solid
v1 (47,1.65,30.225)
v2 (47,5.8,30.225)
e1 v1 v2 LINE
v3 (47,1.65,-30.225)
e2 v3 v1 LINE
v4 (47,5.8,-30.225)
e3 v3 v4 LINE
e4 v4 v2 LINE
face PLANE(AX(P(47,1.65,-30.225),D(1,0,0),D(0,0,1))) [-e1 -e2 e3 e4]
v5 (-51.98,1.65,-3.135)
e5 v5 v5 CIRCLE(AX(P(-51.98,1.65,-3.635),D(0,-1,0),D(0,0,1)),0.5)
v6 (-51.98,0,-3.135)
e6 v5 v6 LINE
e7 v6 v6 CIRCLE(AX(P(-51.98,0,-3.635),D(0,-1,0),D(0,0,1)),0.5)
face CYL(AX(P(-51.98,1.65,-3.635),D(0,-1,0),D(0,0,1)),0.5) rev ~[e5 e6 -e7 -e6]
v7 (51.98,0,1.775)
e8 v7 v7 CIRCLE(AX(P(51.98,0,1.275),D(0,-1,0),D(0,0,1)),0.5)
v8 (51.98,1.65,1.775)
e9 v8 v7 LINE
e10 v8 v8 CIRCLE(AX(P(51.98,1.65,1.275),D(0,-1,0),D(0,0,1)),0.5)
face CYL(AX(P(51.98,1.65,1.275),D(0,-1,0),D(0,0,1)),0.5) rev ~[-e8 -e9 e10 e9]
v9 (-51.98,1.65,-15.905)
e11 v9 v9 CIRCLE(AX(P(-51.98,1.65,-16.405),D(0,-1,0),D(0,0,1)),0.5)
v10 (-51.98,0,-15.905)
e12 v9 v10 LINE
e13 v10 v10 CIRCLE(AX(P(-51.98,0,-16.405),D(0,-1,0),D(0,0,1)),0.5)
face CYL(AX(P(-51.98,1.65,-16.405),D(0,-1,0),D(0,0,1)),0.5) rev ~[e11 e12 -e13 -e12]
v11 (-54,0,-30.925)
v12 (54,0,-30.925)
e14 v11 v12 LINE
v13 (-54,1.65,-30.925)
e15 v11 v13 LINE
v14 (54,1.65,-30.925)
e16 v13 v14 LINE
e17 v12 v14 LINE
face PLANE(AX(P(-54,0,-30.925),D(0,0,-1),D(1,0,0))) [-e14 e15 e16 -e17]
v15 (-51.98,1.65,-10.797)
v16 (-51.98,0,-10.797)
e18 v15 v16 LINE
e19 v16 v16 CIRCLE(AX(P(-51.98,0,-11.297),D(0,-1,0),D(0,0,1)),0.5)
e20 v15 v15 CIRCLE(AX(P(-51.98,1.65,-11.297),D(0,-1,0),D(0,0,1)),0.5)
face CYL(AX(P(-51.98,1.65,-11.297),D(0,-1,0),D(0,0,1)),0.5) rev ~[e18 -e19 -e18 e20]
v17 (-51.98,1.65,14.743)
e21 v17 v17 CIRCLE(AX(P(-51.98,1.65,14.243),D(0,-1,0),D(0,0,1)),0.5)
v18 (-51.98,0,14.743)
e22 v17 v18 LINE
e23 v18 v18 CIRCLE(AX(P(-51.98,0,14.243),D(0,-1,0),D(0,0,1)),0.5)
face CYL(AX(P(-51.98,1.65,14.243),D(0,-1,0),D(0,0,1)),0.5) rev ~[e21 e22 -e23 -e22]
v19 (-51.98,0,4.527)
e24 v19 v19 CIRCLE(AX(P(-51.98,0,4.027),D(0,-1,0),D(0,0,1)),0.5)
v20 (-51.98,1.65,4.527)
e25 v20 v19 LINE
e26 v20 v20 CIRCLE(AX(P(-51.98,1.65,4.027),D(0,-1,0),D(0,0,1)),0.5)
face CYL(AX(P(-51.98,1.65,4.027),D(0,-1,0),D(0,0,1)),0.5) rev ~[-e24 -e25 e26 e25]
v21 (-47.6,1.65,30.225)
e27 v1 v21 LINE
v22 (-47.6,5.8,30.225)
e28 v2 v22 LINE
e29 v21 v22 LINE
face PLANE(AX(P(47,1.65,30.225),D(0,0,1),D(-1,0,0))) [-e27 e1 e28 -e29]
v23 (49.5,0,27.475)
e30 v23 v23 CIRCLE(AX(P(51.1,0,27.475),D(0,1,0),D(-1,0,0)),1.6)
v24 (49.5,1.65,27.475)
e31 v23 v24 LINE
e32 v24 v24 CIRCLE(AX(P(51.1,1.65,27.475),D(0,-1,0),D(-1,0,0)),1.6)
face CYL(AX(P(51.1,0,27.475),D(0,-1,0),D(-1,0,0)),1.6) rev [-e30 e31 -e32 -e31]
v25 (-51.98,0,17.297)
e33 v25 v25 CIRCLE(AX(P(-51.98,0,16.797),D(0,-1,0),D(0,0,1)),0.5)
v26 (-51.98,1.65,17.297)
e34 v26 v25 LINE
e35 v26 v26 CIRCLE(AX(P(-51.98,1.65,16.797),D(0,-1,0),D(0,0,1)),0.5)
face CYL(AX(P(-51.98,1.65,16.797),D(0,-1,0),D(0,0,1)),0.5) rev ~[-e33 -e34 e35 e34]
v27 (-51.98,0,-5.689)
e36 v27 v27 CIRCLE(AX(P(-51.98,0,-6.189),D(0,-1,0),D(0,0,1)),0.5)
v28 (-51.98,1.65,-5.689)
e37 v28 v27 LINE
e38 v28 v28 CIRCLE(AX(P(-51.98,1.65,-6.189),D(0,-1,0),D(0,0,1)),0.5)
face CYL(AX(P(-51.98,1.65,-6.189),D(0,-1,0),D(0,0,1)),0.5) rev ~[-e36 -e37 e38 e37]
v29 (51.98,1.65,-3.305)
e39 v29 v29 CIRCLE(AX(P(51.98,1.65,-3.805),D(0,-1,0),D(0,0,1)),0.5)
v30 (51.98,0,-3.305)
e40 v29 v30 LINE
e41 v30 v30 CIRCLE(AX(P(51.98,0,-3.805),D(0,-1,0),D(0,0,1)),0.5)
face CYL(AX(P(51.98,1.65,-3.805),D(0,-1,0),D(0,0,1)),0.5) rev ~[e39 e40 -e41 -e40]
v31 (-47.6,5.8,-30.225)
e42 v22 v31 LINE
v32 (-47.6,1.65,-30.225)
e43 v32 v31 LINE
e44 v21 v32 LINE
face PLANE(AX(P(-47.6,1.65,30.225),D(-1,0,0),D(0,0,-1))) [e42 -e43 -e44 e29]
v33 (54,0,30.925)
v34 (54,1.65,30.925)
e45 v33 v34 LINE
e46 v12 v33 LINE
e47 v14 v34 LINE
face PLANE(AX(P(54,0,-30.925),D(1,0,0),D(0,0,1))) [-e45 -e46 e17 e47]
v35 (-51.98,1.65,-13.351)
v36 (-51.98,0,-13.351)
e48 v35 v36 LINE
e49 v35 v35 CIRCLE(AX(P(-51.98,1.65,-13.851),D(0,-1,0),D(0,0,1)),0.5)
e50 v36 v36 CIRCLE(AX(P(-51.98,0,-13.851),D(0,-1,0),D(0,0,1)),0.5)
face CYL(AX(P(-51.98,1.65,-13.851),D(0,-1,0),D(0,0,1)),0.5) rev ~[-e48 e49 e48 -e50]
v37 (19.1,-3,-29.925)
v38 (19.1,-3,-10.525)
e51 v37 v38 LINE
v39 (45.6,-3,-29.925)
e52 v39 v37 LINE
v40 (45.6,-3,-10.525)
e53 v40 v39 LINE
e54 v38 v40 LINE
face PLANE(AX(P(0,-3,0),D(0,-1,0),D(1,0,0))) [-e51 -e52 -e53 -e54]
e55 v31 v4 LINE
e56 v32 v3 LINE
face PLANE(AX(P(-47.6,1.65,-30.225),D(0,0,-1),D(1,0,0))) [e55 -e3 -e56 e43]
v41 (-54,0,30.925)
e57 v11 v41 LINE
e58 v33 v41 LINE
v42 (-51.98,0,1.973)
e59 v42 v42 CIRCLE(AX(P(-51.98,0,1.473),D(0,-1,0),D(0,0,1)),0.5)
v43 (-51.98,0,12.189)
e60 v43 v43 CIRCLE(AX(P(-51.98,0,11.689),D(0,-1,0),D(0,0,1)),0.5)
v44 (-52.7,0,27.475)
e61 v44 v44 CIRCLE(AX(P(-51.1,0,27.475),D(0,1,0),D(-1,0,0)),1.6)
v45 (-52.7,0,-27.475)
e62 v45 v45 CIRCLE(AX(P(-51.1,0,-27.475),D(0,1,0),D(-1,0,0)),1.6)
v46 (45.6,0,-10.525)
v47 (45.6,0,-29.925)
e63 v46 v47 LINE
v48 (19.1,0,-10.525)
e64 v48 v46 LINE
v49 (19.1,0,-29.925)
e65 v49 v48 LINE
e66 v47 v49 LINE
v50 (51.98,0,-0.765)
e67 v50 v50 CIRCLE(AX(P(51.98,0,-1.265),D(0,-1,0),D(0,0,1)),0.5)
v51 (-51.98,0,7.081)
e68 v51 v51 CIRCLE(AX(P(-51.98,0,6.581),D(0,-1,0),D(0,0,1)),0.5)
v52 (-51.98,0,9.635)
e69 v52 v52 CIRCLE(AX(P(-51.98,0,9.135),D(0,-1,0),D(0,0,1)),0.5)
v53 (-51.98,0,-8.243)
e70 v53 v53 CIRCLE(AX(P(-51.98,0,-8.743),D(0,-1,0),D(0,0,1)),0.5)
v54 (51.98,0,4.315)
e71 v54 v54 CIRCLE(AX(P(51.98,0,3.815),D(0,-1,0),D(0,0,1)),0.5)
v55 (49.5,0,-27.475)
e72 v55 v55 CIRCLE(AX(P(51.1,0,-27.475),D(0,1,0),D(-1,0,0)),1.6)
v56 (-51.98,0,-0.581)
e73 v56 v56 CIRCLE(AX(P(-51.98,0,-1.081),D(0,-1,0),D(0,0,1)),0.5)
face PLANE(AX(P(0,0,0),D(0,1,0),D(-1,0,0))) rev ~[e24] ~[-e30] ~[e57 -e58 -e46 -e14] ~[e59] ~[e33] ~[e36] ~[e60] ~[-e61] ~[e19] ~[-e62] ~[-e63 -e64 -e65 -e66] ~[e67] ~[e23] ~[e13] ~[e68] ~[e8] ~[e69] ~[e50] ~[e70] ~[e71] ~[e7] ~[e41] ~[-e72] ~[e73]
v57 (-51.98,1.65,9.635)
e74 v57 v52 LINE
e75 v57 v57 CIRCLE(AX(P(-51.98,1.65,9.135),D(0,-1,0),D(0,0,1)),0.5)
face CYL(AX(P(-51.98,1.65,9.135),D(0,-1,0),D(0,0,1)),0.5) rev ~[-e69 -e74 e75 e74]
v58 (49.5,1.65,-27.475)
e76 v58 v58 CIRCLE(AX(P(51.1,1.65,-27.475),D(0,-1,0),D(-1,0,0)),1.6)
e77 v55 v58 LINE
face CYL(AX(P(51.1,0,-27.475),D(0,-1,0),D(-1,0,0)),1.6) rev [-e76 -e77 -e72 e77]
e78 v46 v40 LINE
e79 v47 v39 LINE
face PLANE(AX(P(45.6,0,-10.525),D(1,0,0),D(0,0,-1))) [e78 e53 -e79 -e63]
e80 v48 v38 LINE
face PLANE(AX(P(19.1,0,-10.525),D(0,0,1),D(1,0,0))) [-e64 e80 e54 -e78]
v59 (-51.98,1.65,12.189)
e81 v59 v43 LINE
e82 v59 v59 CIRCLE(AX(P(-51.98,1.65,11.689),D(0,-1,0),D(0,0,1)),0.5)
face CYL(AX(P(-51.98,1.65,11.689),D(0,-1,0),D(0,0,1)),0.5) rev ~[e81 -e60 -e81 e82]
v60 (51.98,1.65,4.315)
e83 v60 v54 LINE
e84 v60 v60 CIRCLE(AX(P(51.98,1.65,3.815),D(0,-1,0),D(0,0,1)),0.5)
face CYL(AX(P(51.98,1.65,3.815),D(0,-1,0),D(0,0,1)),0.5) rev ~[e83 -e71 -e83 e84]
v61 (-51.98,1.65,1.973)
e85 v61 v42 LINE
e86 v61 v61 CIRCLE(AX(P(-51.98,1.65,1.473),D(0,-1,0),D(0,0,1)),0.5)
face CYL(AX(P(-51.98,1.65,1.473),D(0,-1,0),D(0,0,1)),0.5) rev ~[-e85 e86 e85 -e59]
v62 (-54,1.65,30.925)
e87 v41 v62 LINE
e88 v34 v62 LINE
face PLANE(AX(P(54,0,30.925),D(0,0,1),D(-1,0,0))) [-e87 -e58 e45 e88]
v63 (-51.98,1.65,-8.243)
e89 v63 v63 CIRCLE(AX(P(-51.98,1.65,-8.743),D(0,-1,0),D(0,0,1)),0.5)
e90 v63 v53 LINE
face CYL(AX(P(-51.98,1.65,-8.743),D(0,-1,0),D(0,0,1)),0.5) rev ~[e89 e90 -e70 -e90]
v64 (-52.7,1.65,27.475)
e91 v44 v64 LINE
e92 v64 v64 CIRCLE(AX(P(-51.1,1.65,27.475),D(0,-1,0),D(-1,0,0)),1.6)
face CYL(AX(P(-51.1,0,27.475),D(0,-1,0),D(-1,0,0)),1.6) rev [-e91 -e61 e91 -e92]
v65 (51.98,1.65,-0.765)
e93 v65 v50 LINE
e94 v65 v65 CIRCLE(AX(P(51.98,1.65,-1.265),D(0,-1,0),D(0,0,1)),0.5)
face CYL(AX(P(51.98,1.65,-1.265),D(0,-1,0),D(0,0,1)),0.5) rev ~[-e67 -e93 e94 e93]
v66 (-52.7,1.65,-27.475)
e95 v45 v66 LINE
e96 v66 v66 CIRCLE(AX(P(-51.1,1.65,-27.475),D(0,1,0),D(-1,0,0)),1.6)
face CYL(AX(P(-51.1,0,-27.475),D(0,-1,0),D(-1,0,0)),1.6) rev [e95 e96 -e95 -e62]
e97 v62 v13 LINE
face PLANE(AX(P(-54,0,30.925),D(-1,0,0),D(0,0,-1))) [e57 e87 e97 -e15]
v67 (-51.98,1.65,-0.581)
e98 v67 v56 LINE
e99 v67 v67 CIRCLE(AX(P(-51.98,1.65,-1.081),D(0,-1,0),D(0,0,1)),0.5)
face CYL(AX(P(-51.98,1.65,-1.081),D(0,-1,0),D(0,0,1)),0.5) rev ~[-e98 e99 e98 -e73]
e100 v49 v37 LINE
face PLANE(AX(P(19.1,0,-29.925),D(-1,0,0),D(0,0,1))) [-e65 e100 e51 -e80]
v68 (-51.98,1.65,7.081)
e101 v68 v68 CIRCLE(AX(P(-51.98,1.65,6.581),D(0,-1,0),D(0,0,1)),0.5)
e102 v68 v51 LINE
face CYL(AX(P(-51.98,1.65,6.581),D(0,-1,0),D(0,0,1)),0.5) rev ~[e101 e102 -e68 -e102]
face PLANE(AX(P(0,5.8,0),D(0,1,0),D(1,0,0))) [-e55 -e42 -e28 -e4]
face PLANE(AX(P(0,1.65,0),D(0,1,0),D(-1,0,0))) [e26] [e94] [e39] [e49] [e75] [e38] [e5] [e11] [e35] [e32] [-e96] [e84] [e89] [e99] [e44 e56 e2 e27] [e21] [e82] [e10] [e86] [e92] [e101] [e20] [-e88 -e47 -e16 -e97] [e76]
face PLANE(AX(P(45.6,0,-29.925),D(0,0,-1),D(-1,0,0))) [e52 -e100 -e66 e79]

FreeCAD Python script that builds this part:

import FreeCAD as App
import Part
import Sketcher

V = App.Vector
Q = App.Units.Quantity


def add_polygon(sketch, points):
    """Adds a closed chain of lines whose ends are joined by coincident constraints."""
    first, n = sketch.GeometryCount, len(points)
    for a, b in zip(points, points[1:] + points[:1]):
        sketch.addGeometry(Part.LineSegment(App.Vector(*a, 0), App.Vector(*b, 0)), False)
    for i in range(n):
        sketch.addConstraint(Sketcher.Constraint("Coincident", first + i, 2, first + (i + 1) % n, 1))

doc = App.newDocument("Part")
body = doc.addObject("PartDesign::Body", "Body")

# Sketch on XZ plane
sketch1 = body.newObject("Sketcher::SketchObject", "Sketch")
sketch1.AttachmentSupport = (doc.getObject("XZ_Plane"), [""])
sketch1.MapMode = "FlatFace"
add_polygon(sketch1, [(-54, 30.9), (54, 30.9), (54, -30.9), (-54, -30.9)])  # lines 0-3
sketch1.addGeometry(Part.Circle(V(51.1, -27.5, 0), V(0, 0, 1), 1.6), False)  # 4
sketch1.addGeometry(Part.Circle(V(-51.1, -27.5, 0), V(0, 0, 1), 1.6), False)  # 5
sketch1.addGeometry(Part.Circle(V(51.1, 27.5, 0), V(0, 0, 1), 1.6), False)  # 6
sketch1.addGeometry(Part.Circle(V(-51.1, 27.5, 0), V(0, 0, 1), 1.6), False)  # 7
sketch1.addConstraint(Sketcher.Constraint("Horizontal", 0))
sketch1.addConstraint(Sketcher.Constraint("Vertical", 1))
sketch1.addConstraint(Sketcher.Constraint("Horizontal", 2))
sketch1.addConstraint(Sketcher.Constraint("Vertical", 3))
sketch1.addConstraint(Sketcher.Constraint("Equal", 4, 5))
sketch1.addConstraint(Sketcher.Constraint("Equal", 5, 6))
sketch1.addConstraint(Sketcher.Constraint("Equal", 6, 7))
sketch1.addConstraint(Sketcher.Constraint("Symmetric", 5, 3, 6, 3, -1, 1))
sketch1.addConstraint(Sketcher.Constraint("Symmetric", 4, 3, 7, 3, -1, 1))
sketch1.addConstraint(Sketcher.Constraint("Symmetric", 0, 2, 2, 2, -1, 1))
sketch1.addConstraint(Sketcher.Constraint("Symmetric", 4, 3, 5, 3, -2))
sketch1.addConstraint(Sketcher.Constraint("Diameter", 4, Q("3.2 mm")))
sketch1.addConstraint(Sketcher.Constraint("DistanceX", 0, 1, 0, 2, Q("108 mm")))
sketch1.addConstraint(Sketcher.Constraint("DistanceY", 1, 2, 1, 1, Q("61.85 mm")))
sketch1.addConstraint(Sketcher.Constraint("DistanceX", -1, 1, 4, 3, Q("51.1 mm")))
sketch1.addConstraint(Sketcher.Constraint("DistanceY", 4, 3, 0, 2, Q("58.4 mm")))
pad1 = body.newObject("PartDesign::Pad", "Pad")
pad1.Profile = sketch1
pad1.Length = 1.65
pad1.Reversed = True

# Sketch on XZ plane
sketch2 = body.newObject("Sketcher::SketchObject", "Sketch001")
sketch2.AttachmentSupport = (doc.getObject("XZ_Plane"), [""])
sketch2.MapMode = "FlatFace"
sketch2.AttachmentOffset = App.Placement(V(0, 0, -1.65), App.Rotation())
sketch2.addGeometry(Part.Circle(V(52, -3.8, 0), V(0, 0, 1), 0.5), False)
sketch2.addGeometry(Part.Circle(V(52, -1.3, 0), V(0, 0, 1), 0.5), False)
sketch2.addGeometry(Part.Circle(V(52, 1.3, 0), V(0, 0, 1), 0.5), False)
sketch2.addGeometry(Part.Circle(V(52, 3.8, 0), V(0, 0, 1), 0.5), False)
sketch2.addGeometry(Part.Circle(V(-52, -16.4, 0), V(0, 0, 1), 0.5), False)
sketch2.addGeometry(Part.Circle(V(-52, -13.9, 0), V(0, 0, 1), 0.5), False)
sketch2.addGeometry(Part.Circle(V(-52, -11.3, 0), V(0, 0, 1), 0.5), False)
sketch2.addGeometry(Part.Circle(V(-52, -8.7, 0), V(0, 0, 1), 0.5), False)
sketch2.addGeometry(Part.Circle(V(-52, -6.2, 0), V(0, 0, 1), 0.5), False)
sketch2.addGeometry(Part.Circle(V(-52, -3.6, 0), V(0, 0, 1), 0.5), False)
sketch2.addGeometry(Part.Circle(V(-52, -1.1, 0), V(0, 0, 1), 0.5), False)
sketch2.addGeometry(Part.Circle(V(-52, 1.5, 0), V(0, 0, 1), 0.5), False)
sketch2.addGeometry(Part.Circle(V(-52, 4, 0), V(0, 0, 1), 0.5), False)
sketch2.addGeometry(Part.Circle(V(-52, 6.6, 0), V(0, 0, 1), 0.5), False)
sketch2.addGeometry(Part.Circle(V(-52, 9.1, 0), V(0, 0, 1), 0.5), False)
sketch2.addGeometry(Part.Circle(V(-52, 11.7, 0), V(0, 0, 1), 0.5), False)
sketch2.addGeometry(Part.Circle(V(-52, 14.2, 0), V(0, 0, 1), 0.5), False)
sketch2.addGeometry(Part.Circle(V(-52, 16.8, 0), V(0, 0, 1), 0.5), False)
sketch2.addConstraint(Sketcher.Constraint("Equal", 0, 1))
sketch2.addConstraint(Sketcher.Constraint("Equal", 1, 2))
sketch2.addConstraint(Sketcher.Constraint("Equal", 2, 3))
sketch2.addConstraint(Sketcher.Constraint("Equal", 3, 4))
sketch2.addConstraint(Sketcher.Constraint("Equal", 4, 5))
sketch2.addConstraint(Sketcher.Constraint("Equal", 5, 6))
sketch2.addConstraint(Sketcher.Constraint("Equal", 6, 7))
sketch2.addConstraint(Sketcher.Constraint("Equal", 7, 8))
sketch2.addConstraint(Sketcher.Constraint("Equal", 8, 9))
sketch2.addConstraint(Sketcher.Constraint("Equal", 9, 10))
sketch2.addConstraint(Sketcher.Constraint("Equal", 10, 11))
sketch2.addConstraint(Sketcher.Constraint("Equal", 11, 12))
sketch2.addConstraint(Sketcher.Constraint("Equal", 12, 13))
sketch2.addConstraint(Sketcher.Constraint("Equal", 13, 14))
sketch2.addConstraint(Sketcher.Constraint("Equal", 14, 15))
sketch2.addConstraint(Sketcher.Constraint("Equal", 15, 16))
sketch2.addConstraint(Sketcher.Constraint("Equal", 16, 17))
sketch2.addConstraint(Sketcher.Constraint("Vertical", 0, 3, 1, 3))
sketch2.addConstraint(Sketcher.Constraint("Vertical", 1, 3, 2, 3))
sketch2.addConstraint(Sketcher.Constraint("Vertical", 2, 3, 3, 3))
sketch2.addConstraint(Sketcher.Constraint("Vertical", 4, 3, 5, 3))
sketch2.addConstraint(Sketcher.Constraint("Vertical", 5, 3, 6, 3))
sketch2.addConstraint(Sketcher.Constraint("Vertical", 6, 3, 7, 3))
sketch2.addConstraint(Sketcher.Constraint("Vertical", 7, 3, 8, 3))
sketch2.addConstraint(Sketcher.Constraint("Vertical", 8, 3, 9, 3))
sketch2.addConstraint(Sketcher.Constraint("Vertical", 9, 3, 10, 3))
sketch2.addConstraint(Sketcher.Constraint("Vertical", 10, 3, 11, 3))
sketch2.addConstraint(Sketcher.Constraint("Vertical", 11, 3, 12, 3))
sketch2.addConstraint(Sketcher.Constraint("Vertical", 12, 3, 13, 3))
sketch2.addConstraint(Sketcher.Constraint("Vertical", 13, 3, 14, 3))
sketch2.addConstraint(Sketcher.Constraint("Vertical", 14, 3, 15, 3))
sketch2.addConstraint(Sketcher.Constraint("Vertical", 15, 3, 16, 3))
sketch2.addConstraint(Sketcher.Constraint("Vertical", 16, 3, 17, 3))
sketch2.addConstraint(Sketcher.Constraint("Diameter", 0, Q("1 mm")))
sketch2.addConstraint(Sketcher.Constraint("DistanceY", 4, 3, 0, 3, Q("12.6 mm")))
sketch2.addConstraint(Sketcher.Constraint("DistanceX", -1, 1, 0, 3, Q("51.98 mm")))
sketch2.addConstraint(Sketcher.Constraint("DistanceX", 4, 3, -1, 1, Q("51.98 mm")))
sketch2.addConstraint(Sketcher.Constraint("DistanceY", 0, 3, 1, 3, Q("2.54 mm")))
sketch2.addConstraint(Sketcher.Constraint("DistanceY", 1, 3, 2, 3, Q("2.54 mm")))
sketch2.addConstraint(Sketcher.Constraint("DistanceY", 2, 3, 3, 3, Q("2.54 mm")))
sketch2.addConstraint(Sketcher.Constraint("DistanceY", 4, 3, 9, 3, Q("12.77 mm")))
sketch2.addConstraint(Sketcher.Constraint("DistanceY", 5, 3, 10, 3, Q("12.77 mm")))
sketch2.addConstraint(Sketcher.Constraint("DistanceY", 6, 3, 11, 3, Q("12.77 mm")))
sketch2.addConstraint(Sketcher.Constraint("DistanceY", 7, 3, 12, 3, Q("12.77 mm")))
sketch2.addConstraint(Sketcher.Constraint("DistanceY", 8, 3, 13, 3, Q("12.77 mm")))
sketch2.addConstraint(Sketcher.Constraint("DistanceY", 9, 3, 14, 3, Q("12.77 mm")))
sketch2.addConstraint(Sketcher.Constraint("DistanceY", 10, 3, 15, 3, Q("12.77 mm")))
sketch2.addConstraint(Sketcher.Constraint("DistanceY", 11, 3, 16, 3, Q("12.77 mm")))
sketch2.addConstraint(Sketcher.Constraint("DistanceY", 12, 3, 17, 3, Q("12.77 mm")))
sketch2.addConstraint(Sketcher.Constraint("DistanceY", 0, 3, -1, 1, Q("3.805 mm")))
sketch2.addConstraint(Sketcher.Constraint("DistanceY", 5, 3, -1, 1, Q("13.851 mm")))
sketch2.addConstraint(Sketcher.Constraint("DistanceY", 6, 3, -1, 1, Q("11.297 mm")))
sketch2.addConstraint(Sketcher.Constraint("DistanceY", 7, 3, -1, 1, Q("8.743 mm")))
sketch2.addConstraint(Sketcher.Constraint("DistanceY", 8, 3, -1, 1, Q("6.189 mm")))
doc.recompute()
hole = body.newObject("PartDesign::Hole", "Hole")
hole.Profile = sketch2
hole.ThreadType = "None"
hole.Diameter = 1
hole.DepthType = "ThroughAll"
hole.Reversed = True

# Sketch on XZ plane
sketch3 = body.newObject("Sketcher::SketchObject", "Sketch002")
sketch3.AttachmentSupport = (doc.getObject("XZ_Plane"), [""])
sketch3.MapMode = "FlatFace"
sketch3.AttachmentOffset = App.Placement(V(0, 0, -1.65), App.Rotation())
add_polygon(sketch3, [(-48, -30), (-48, 30), (47, 30), (47, -30)])  # lines 0-3
sketch3.addConstraint(Sketcher.Constraint("Vertical", 0))
sketch3.addConstraint(Sketcher.Constraint("Horizontal", 1))
sketch3.addConstraint(Sketcher.Constraint("Vertical", 2))
sketch3.addConstraint(Sketcher.Constraint("Horizontal", 3))
sketch3.addConstraint(Sketcher.Constraint("DistanceX", 1, 1, 1, 2, Q("94.6 mm")))
sketch3.addConstraint(Sketcher.Constraint("DistanceX", -1, 1, 1, 2, Q("47 mm")))
sketch3.addConstraint(Sketcher.Constraint("DistanceY", 0, 1, 0, 2, Q("60.45 mm")))
sketch3.addConstraint(Sketcher.Constraint("DistanceY", -1, 1, 0, 2, Q("30.225 mm")))
pad2 = body.newObject("PartDesign::Pad", "Pad001")
pad2.Profile = sketch3
pad2.Length = 4.15
pad2.Reversed = True

# Sketch on XZ plane
sketch4 = body.newObject("Sketcher::SketchObject", "Sketch003")
sketch4.AttachmentSupport = (doc.getObject("XZ_Plane"), [""])
sketch4.MapMode = "FlatFace"
add_polygon(sketch4, [(19, -30), (46, -30), (46, -11), (19, -11)])  # lines 0-3
sketch4.addConstraint(Sketcher.Constraint("Horizontal", 0))
sketch4.addConstraint(Sketcher.Constraint("Vertical", 1))
sketch4.addConstraint(Sketcher.Constraint("Horizontal", 2))
sketch4.addConstraint(Sketcher.Constraint("Vertical", 3))
sketch4.addConstraint(Sketcher.Constraint("DistanceX", 0, 1, 0, 2, Q("26.5 mm")))
sketch4.addConstraint(Sketcher.Constraint("DistanceY", 1, 1, 1, 2, Q("19.4 mm")))
sketch4.addConstraint(Sketcher.Constraint("DistanceX", -1, 1, 0, 2, Q("45.6 mm")))
sketch4.addConstraint(Sketcher.Constraint("DistanceY", 0, 2, -1, 1, Q("29.925 mm")))
pad3 = body.newObject("PartDesign::Pad", "Pad002")
pad3.Profile = sketch4
pad3.Length = 3

doc.recompute()
